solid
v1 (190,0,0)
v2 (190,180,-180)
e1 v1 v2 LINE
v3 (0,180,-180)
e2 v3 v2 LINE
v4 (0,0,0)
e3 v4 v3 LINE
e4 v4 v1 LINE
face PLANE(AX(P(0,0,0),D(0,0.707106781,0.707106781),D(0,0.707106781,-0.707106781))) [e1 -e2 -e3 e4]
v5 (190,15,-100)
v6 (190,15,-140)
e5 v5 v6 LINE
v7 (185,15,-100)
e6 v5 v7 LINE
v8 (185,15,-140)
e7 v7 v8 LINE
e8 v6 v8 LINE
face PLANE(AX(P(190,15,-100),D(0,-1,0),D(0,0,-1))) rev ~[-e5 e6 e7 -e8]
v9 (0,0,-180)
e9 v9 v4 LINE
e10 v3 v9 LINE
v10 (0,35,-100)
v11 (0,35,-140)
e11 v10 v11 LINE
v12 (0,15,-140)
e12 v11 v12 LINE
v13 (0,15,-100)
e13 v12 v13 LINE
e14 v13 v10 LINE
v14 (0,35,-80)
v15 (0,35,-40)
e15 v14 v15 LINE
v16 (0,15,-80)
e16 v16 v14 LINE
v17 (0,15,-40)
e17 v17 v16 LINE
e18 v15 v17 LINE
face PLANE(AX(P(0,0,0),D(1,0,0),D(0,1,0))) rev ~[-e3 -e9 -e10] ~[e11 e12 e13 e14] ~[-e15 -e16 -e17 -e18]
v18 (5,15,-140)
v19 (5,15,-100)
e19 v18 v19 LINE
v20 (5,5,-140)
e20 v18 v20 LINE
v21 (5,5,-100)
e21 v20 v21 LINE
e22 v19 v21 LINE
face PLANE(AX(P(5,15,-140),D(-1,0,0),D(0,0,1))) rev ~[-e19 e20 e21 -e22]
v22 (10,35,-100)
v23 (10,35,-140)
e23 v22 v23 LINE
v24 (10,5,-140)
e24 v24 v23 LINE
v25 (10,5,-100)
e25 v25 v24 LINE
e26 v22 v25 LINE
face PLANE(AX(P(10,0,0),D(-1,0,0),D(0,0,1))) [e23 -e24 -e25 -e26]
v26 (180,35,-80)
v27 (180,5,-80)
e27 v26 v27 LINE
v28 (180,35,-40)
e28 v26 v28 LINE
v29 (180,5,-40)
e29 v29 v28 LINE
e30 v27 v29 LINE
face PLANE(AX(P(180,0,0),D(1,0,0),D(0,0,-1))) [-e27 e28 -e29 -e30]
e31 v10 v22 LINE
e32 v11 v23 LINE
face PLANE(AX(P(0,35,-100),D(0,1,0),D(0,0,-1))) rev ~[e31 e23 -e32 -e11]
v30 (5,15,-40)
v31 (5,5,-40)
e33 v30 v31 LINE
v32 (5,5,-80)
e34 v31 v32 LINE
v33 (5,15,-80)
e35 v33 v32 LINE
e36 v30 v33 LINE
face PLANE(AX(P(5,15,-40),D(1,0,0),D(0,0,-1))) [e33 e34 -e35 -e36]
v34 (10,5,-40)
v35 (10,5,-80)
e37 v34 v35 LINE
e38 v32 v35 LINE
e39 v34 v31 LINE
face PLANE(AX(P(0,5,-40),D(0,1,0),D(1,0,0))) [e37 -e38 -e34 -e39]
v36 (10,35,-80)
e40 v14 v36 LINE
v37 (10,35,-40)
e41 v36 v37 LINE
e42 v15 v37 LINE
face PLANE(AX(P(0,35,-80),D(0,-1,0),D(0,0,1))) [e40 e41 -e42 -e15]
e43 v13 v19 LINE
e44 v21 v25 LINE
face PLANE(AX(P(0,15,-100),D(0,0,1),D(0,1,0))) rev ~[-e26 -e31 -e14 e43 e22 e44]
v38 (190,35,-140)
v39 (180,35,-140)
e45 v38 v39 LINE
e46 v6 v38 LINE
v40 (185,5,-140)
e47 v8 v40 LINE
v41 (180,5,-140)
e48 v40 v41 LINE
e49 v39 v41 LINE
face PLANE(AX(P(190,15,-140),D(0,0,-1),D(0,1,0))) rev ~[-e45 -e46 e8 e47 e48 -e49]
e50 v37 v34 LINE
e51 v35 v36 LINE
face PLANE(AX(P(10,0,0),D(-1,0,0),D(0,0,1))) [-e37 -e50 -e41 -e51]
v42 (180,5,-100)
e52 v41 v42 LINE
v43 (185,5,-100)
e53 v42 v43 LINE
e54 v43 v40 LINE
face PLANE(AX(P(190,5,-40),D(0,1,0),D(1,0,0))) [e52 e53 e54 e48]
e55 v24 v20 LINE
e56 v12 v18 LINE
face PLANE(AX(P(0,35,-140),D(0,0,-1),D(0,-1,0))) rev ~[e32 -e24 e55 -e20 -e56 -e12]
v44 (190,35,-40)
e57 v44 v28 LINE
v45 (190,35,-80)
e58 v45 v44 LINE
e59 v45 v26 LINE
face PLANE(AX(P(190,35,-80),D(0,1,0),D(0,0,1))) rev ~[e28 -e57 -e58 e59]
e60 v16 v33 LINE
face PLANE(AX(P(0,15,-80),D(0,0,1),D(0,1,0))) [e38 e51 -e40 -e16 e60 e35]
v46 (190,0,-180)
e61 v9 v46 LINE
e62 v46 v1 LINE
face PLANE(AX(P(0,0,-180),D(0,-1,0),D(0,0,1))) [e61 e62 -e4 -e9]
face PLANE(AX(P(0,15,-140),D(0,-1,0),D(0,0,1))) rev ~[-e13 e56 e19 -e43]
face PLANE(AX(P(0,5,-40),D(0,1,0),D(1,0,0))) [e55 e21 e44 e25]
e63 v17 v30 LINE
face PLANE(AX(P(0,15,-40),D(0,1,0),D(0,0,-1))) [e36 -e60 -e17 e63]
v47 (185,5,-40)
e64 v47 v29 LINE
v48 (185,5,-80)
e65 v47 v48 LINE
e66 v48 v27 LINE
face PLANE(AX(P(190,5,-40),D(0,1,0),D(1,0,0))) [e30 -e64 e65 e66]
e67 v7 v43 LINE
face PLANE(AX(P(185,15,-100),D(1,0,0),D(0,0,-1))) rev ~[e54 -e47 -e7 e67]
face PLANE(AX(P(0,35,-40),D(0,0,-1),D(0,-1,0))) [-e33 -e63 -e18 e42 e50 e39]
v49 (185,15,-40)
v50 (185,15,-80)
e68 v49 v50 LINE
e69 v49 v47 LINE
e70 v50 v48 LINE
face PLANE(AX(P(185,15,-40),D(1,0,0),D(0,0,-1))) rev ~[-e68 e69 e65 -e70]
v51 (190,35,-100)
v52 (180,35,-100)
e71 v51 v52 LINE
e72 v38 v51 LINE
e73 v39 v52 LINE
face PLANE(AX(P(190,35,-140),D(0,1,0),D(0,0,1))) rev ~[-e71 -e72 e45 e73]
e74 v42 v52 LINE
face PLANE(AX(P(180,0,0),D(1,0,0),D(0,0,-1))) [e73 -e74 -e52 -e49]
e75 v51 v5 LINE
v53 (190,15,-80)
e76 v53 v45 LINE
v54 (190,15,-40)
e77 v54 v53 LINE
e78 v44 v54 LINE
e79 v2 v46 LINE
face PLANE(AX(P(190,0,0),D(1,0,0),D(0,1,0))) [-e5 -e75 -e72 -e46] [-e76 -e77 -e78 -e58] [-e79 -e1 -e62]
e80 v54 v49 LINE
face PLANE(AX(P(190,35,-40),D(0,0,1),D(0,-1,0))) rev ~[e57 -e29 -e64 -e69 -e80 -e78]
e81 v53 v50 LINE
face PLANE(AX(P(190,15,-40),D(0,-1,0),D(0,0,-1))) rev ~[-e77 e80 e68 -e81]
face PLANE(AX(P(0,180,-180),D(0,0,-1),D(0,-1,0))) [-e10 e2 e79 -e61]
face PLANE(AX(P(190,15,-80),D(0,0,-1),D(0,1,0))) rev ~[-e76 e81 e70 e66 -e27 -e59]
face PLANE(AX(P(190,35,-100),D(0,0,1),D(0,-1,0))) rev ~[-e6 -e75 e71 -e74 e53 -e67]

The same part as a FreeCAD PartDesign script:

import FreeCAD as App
import Part
import Sketcher

V = App.Vector

doc = App.newDocument("Part")
body = doc.addObject("PartDesign::Body", "Body")

sketch1 = body.newObject("Sketcher::SketchObject", "Sketch")
sketch1.AttachmentSupport = (doc.getObject("YZ_Plane"), [""])
sketch1.MapMode = "FlatFace"
sketch1.addGeometry(Part.LineSegment(V(180, -180, 0), V(0, 0, 0)), False)
sketch1.addGeometry(Part.LineSegment(V(0, 0, 0), V(0, -180, 0)), False)
sketch1.addGeometry(Part.LineSegment(V(0, -180, 0), V(180, -180, 0)), False)
sketch1.addConstraint(Sketcher.Constraint("Coincident", 0, 2, 1, 1))
sketch1.addConstraint(Sketcher.Constraint("Coincident", 1, 2, 2, 1))
sketch1.addConstraint(Sketcher.Constraint("Coincident", 2, 2, 0, 1))
sketch1.addConstraint(Sketcher.Constraint("Vertical", 1))
sketch1.addConstraint(Sketcher.Constraint("Horizontal", 2))
sketch1.addConstraint(Sketcher.Constraint("Coincident", 0, 2, -1, 1))
sketch1.addConstraint(Sketcher.Constraint("Equal", 2, 1))
sketch1.addConstraint(Sketcher.Constraint("DistanceX", 2, 1, 2, 2, 180.0))
pad1 = body.newObject("PartDesign::Pad", "Pad")
pad1.Profile = sketch1
pad1.Length = 190

sketch2 = body.newObject("Sketcher::SketchObject", "Sketch001")
sketch2.AttachmentSupport = (doc.getObject("YZ_Plane"), [""])
sketch2.MapMode = "FlatFace"
sketch2.addGeometry(Part.LineSegment(V(35, -140, 0), V(15, -140, 0)), False)
sketch2.addGeometry(Part.LineSegment(V(15, -140, 0), V(15, -100, 0)), False)
sketch2.addGeometry(Part.LineSegment(V(15, -100, 0), V(35, -100, 0)), False)
sketch2.addGeometry(Part.LineSegment(V(35, -100, 0), V(35, -140, 0)), False)
sketch2.addGeometry(Part.LineSegment(V(35, -40, 0), V(35, -80, 0)), False)
sketch2.addGeometry(Part.LineSegment(V(35, -80, 0), V(15, -80, 0)), False)
sketch2.addGeometry(Part.LineSegment(V(15, -80, 0), V(15, -40, 0)), False)
sketch2.addGeometry(Part.LineSegment(V(15, -40, 0), V(35, -40, 0)), False)
sketch2.addConstraint(Sketcher.Constraint("Coincident", 0, 2, 1, 1))
sketch2.addConstraint(Sketcher.Constraint("Coincident", 1, 2, 2, 1))
sketch2.addConstraint(Sketcher.Constraint("Coincident", 2, 2, 3, 1))
sketch2.addConstraint(Sketcher.Constraint("Coincident", 3, 2, 0, 1))
sketch2.addConstraint(Sketcher.Constraint("Coincident", 4, 2, 5, 1))
sketch2.addConstraint(Sketcher.Constraint("Coincident", 5, 2, 6, 1))
sketch2.addConstraint(Sketcher.Constraint("Coincident", 6, 2, 7, 1))
sketch2.addConstraint(Sketcher.Constraint("Coincident", 7, 2, 4, 1))
sketch2.addConstraint(Sketcher.Constraint("Horizontal", 0))
sketch2.addConstraint(Sketcher.Constraint("Vertical", 1))
sketch2.addConstraint(Sketcher.Constraint("Horizontal", 2))
sketch2.addConstraint(Sketcher.Constraint("Vertical", 3))
sketch2.addConstraint(Sketcher.Constraint("Vertical", 4))
sketch2.addConstraint(Sketcher.Constraint("Horizontal", 5))
sketch2.addConstraint(Sketcher.Constraint("Vertical", 6))
sketch2.addConstraint(Sketcher.Constraint("Horizontal", 7))
sketch2.addConstraint(Sketcher.Constraint("Vertical", 3, 2, 4, 2))
sketch2.addConstraint(Sketcher.Constraint("Vertical", 1, 2, 5, 2))
sketch2.addConstraint(Sketcher.Constraint("Equal", 3, 4))
sketch2.addConstraint(Sketcher.Constraint("DistanceX", 0, 2, 0, 1, 20.0))
sketch2.addConstraint(Sketcher.Constraint("DistanceY", 1, 1, 1, 2, 40.0))
sketch2.addConstraint(Sketcher.Constraint("DistanceX", -1, 1, 0, 2, 15.0))
sketch2.addConstraint(Sketcher.Constraint("DistanceY", 6, 2, -1, 1, 40.0))
sketch2.addConstraint(Sketcher.Constraint("DistanceY", 2, 2, 4, 2, 20.0))
pocket1 = body.newObject("PartDesign::Pocket", "Pocket")
pocket1.Profile = sketch2
pocket1.Length = 10
pocket1.Reversed = True

sketch3 = body.newObject("Sketcher::SketchObject", "Sketch002")
sketch3.AttachmentSupport = (doc.getObject("XZ_Plane"), [""])
sketch3.MapMode = "FlatFace"
sketch3.AttachmentOffset = App.Placement(V(0, 0, -15), App.Rotation())
sketch3.addGeometry(Part.LineSegment(V(5, -40, 0), V(10, -40, 0)), False)
sketch3.addGeometry(Part.LineSegment(V(10, -40, 0), V(10, -80, 0)), False)
sketch3.addGeometry(Part.LineSegment(V(10, -80, 0), V(5, -80, 0)), False)
sketch3.addGeometry(Part.LineSegment(V(5, -80, 0), V(5, -40, 0)), False)
sketch3.addGeometry(Part.LineSegment(V(10, -100, 0), V(10, -140, 0)), False)
sketch3.addGeometry(Part.LineSegment(V(10, -140, 0), V(5, -140, 0)), False)
sketch3.addGeometry(Part.LineSegment(V(5, -140, 0), V(5, -100, 0)), False)
sketch3.addGeometry(Part.LineSegment(V(5, -100, 0), V(10, -100, 0)), False)
sketch3.addConstraint(Sketcher.Constraint("Coincident", 0, 2, 1, 1))
sketch3.addConstraint(Sketcher.Constraint("Coincident", 1, 2, 2, 1))
sketch3.addConstraint(Sketcher.Constraint("Coincident", 2, 2, 3, 1))
sketch3.addConstraint(Sketcher.Constraint("Coincident", 3, 2, 0, 1))
sketch3.addConstraint(Sketcher.Constraint("Coincident", 4, 2, 5, 1))
sketch3.addConstraint(Sketcher.Constraint("Coincident", 5, 2, 6, 1))
sketch3.addConstraint(Sketcher.Constraint("Coincident", 6, 2, 7, 1))
sketch3.addConstraint(Sketcher.Constraint("Coincident", 7, 2, 4, 1))
sketch3.addConstraint(Sketcher.Constraint("Horizontal", 0))
sketch3.addConstraint(Sketcher.Constraint("Vertical", 1))
sketch3.addConstraint(Sketcher.Constraint("Horizontal", 2))
sketch3.addConstraint(Sketcher.Constraint("Vertical", 3))
sketch3.addConstraint(Sketcher.Constraint("Vertical", 4))
sketch3.addConstraint(Sketcher.Constraint("Horizontal", 5))
sketch3.addConstraint(Sketcher.Constraint("Vertical", 6))
sketch3.addConstraint(Sketcher.Constraint("Horizontal", 7))
sketch3.addConstraint(Sketcher.Constraint("Vertical", 1, 2, 4, 2))
sketch3.addConstraint(Sketcher.Constraint("Vertical", 3, 2, 5, 2))
sketch3.addConstraint(Sketcher.Constraint("Equal", 3, 4))
sketch3.addConstraint(Sketcher.Constraint("DistanceX", 0, 1, 0, 2, 5.0))
sketch3.addConstraint(Sketcher.Constraint("DistanceY", 1, 2, 1, 1, 40.0))
sketch3.addConstraint(Sketcher.Constraint("DistanceY", 0, 2, -1, 1, 40.0))
sketch3.addConstraint(Sketcher.Constraint("DistanceX", -1, 1, 2, 2, 5.0))
sketch3.addConstraint(Sketcher.Constraint("DistanceY", 4, 2, -1, 1, 140.0))
pocket2 = body.newObject("PartDesign::Pocket", "Pocket001")
pocket2.Profile = sketch3
pocket2.Length = 10
pocket2.Reversed = True

sketch4 = body.newObject("Sketcher::SketchObject", "Sketch003")
sketch4.AttachmentSupport = (doc.getObject("YZ_Plane"), [""])
sketch4.MapMode = "FlatFace"
sketch4.AttachmentOffset = App.Placement(V(0, 0, 190), App.Rotation())
sketch4.addGeometry(Part.LineSegment(V(15, -140, 0), V(35, -140, 0)), False)
sketch4.addGeometry(Part.LineSegment(V(35, -140, 0), V(35, -100, 0)), False)
sketch4.addGeometry(Part.LineSegment(V(35, -100, 0), V(15, -100, 0)), False)
sketch4.addGeometry(Part.LineSegment(V(15, -100, 0), V(15, -140, 0)), False)
sketch4.addGeometry(Part.LineSegment(V(15, -80, 0), V(35, -80, 0)), False)
sketch4.addGeometry(Part.LineSegment(V(35, -80, 0), V(35, -40, 0)), False)
sketch4.addGeometry(Part.LineSegment(V(35, -40, 0), V(15, -40, 0)), False)
sketch4.addGeometry(Part.LineSegment(V(15, -40, 0), V(15, -80, 0)), False)
sketch4.addConstraint(Sketcher.Constraint("Coincident", 0, 2, 1, 1))
sketch4.addConstraint(Sketcher.Constraint("Coincident", 1, 2, 2, 1))
sketch4.addConstraint(Sketcher.Constraint("Coincident", 2, 2, 3, 1))
sketch4.addConstraint(Sketcher.Constraint("Coincident", 3, 2, 0, 1))
sketch4.addConstraint(Sketcher.Constraint("Coincident", 4, 2, 5, 1))
sketch4.addConstraint(Sketcher.Constraint("Coincident", 5, 2, 6, 1))
sketch4.addConstraint(Sketcher.Constraint("Coincident", 6, 2, 7, 1))
sketch4.addConstraint(Sketcher.Constraint("Coincident", 7, 2, 4, 1))
sketch4.addConstraint(Sketcher.Constraint("Horizontal", 0))
sketch4.addConstraint(Sketcher.Constraint("Vertical", 1))
sketch4.addConstraint(Sketcher.Constraint("Horizontal", 2))
sketch4.addConstraint(Sketcher.Constraint("Vertical", 3))
sketch4.addConstraint(Sketcher.Constraint("Horizontal", 4))
sketch4.addConstraint(Sketcher.Constraint("Vertical", 5))
sketch4.addConstraint(Sketcher.Constraint("Horizontal", 6))
sketch4.addConstraint(Sketcher.Constraint("Vertical", 7))
sketch4.addConstraint(Sketcher.Constraint("Vertical", 1, 2, 4, 2))
sketch4.addConstraint(Sketcher.Constraint("Vertical", 3, 2, 6, 2))
sketch4.addConstraint(Sketcher.Constraint("Equal", 3, 5))
sketch4.addConstraint(Sketcher.Constraint("DistanceX", 0, 1, 0, 2, 20.0))
sketch4.addConstraint(Sketcher.Constraint("DistanceY", 1, 1, 1, 2, 40.0))
sketch4.addConstraint(Sketcher.Constraint("DistanceX", -1, 1, 2, 2, 15.0))
sketch4.addConstraint(Sketcher.Constraint("DistanceY", 5, 2, -1, 1, 40.0))
sketch4.addConstraint(Sketcher.Constraint("DistanceY", 1, 2, 4, 2, 20.0))
pocket3 = body.newObject("PartDesign::Pocket", "Pocket002")
pocket3.Profile = sketch4
pocket3.Length = 10

sketch5 = body.newObject("Sketcher::SketchObject", "Sketch004")
sketch5.AttachmentSupport = (doc.getObject("XZ_Plane"), [""])
sketch5.MapMode = "FlatFace"
sketch5.AttachmentOffset = App.Placement(V(0, 0, -15), App.Rotation())
sketch5.addGeometry(Part.LineSegment(V(180, -40, 0), V(185, -40, 0)), False)
sketch5.addGeometry(Part.LineSegment(V(185, -40, 0), V(185, -80, 0)), False)
sketch5.addGeometry(Part.LineSegment(V(185, -80, 0), V(180, -80, 0)), False)
sketch5.addGeometry(Part.LineSegment(V(180, -80, 0), V(180, -40, 0)), False)
sketch5.addGeometry(Part.LineSegment(V(180, -140, 0), V(180, -100, 0)), False)
sketch5.addGeometry(Part.LineSegment(V(180, -100, 0), V(185, -100, 0)), False)
sketch5.addGeometry(Part.LineSegment(V(185, -100, 0), V(185, -140, 0)), False)
sketch5.addGeometry(Part.LineSegment(V(185, -140, 0), V(180, -140, 0)), False)
sketch5.addConstraint(Sketcher.Constraint("Coincident", 0, 2, 1, 1))
sketch5.addConstraint(Sketcher.Constraint("Coincident", 1, 2, 2, 1))
sketch5.addConstraint(Sketcher.Constraint("Coincident", 2, 2, 3, 1))
sketch5.addConstraint(Sketcher.Constraint("Coincident", 3, 2, 0, 1))
sketch5.addConstraint(Sketcher.Constraint("Coincident", 4, 2, 5, 1))
sketch5.addConstraint(Sketcher.Constraint("Coincident", 5, 2, 6, 1))
sketch5.addConstraint(Sketcher.Constraint("Coincident", 6, 2, 7, 1))
sketch5.addConstraint(Sketcher.Constraint("Coincident", 7, 2, 4, 1))
sketch5.addConstraint(Sketcher.Constraint("Horizontal", 0))
sketch5.addConstraint(Sketcher.Constraint("Vertical", 1))
sketch5.addConstraint(Sketcher.Constraint("Horizontal", 2))
sketch5.addConstraint(Sketcher.Constraint("Vertical", 3))
sketch5.addConstraint(Sketcher.Constraint("Vertical", 4))
sketch5.addConstraint(Sketcher.Constraint("Horizontal", 5))
sketch5.addConstraint(Sketcher.Constraint("Vertical", 6))
sketch5.addConstraint(Sketcher.Constraint("Horizontal", 7))
sketch5.addConstraint(Sketcher.Constraint("Vertical", 3, 2, 4, 2))
sketch5.addConstraint(Sketcher.Constraint("Vertical", 1, 2, 5, 2))
sketch5.addConstraint(Sketcher.Constraint("Equal", 3, 4))
sketch5.addConstraint(Sketcher.Constraint("DistanceX", 0, 1, 0, 2, 5.0))
sketch5.addConstraint(Sketcher.Constraint("DistanceY", 1, 2, 1, 1, 40.0))
sketch5.addConstraint(Sketcher.Constraint("DistanceY", 0, 2, -1, 1, 40.0))
sketch5.addConstraint(Sketcher.Constraint("DistanceX", -1, 1, 0, 2, 185.0))
sketch5.addConstraint(Sketcher.Constraint("DistanceY", 4, 2, -1, 1, 100.0))
pocket4 = body.newObject("PartDesign::Pocket", "Pocket003")
pocket4.Profile = sketch5
pocket4.Length = 10
pocket4.Reversed = True

doc.recompute()
